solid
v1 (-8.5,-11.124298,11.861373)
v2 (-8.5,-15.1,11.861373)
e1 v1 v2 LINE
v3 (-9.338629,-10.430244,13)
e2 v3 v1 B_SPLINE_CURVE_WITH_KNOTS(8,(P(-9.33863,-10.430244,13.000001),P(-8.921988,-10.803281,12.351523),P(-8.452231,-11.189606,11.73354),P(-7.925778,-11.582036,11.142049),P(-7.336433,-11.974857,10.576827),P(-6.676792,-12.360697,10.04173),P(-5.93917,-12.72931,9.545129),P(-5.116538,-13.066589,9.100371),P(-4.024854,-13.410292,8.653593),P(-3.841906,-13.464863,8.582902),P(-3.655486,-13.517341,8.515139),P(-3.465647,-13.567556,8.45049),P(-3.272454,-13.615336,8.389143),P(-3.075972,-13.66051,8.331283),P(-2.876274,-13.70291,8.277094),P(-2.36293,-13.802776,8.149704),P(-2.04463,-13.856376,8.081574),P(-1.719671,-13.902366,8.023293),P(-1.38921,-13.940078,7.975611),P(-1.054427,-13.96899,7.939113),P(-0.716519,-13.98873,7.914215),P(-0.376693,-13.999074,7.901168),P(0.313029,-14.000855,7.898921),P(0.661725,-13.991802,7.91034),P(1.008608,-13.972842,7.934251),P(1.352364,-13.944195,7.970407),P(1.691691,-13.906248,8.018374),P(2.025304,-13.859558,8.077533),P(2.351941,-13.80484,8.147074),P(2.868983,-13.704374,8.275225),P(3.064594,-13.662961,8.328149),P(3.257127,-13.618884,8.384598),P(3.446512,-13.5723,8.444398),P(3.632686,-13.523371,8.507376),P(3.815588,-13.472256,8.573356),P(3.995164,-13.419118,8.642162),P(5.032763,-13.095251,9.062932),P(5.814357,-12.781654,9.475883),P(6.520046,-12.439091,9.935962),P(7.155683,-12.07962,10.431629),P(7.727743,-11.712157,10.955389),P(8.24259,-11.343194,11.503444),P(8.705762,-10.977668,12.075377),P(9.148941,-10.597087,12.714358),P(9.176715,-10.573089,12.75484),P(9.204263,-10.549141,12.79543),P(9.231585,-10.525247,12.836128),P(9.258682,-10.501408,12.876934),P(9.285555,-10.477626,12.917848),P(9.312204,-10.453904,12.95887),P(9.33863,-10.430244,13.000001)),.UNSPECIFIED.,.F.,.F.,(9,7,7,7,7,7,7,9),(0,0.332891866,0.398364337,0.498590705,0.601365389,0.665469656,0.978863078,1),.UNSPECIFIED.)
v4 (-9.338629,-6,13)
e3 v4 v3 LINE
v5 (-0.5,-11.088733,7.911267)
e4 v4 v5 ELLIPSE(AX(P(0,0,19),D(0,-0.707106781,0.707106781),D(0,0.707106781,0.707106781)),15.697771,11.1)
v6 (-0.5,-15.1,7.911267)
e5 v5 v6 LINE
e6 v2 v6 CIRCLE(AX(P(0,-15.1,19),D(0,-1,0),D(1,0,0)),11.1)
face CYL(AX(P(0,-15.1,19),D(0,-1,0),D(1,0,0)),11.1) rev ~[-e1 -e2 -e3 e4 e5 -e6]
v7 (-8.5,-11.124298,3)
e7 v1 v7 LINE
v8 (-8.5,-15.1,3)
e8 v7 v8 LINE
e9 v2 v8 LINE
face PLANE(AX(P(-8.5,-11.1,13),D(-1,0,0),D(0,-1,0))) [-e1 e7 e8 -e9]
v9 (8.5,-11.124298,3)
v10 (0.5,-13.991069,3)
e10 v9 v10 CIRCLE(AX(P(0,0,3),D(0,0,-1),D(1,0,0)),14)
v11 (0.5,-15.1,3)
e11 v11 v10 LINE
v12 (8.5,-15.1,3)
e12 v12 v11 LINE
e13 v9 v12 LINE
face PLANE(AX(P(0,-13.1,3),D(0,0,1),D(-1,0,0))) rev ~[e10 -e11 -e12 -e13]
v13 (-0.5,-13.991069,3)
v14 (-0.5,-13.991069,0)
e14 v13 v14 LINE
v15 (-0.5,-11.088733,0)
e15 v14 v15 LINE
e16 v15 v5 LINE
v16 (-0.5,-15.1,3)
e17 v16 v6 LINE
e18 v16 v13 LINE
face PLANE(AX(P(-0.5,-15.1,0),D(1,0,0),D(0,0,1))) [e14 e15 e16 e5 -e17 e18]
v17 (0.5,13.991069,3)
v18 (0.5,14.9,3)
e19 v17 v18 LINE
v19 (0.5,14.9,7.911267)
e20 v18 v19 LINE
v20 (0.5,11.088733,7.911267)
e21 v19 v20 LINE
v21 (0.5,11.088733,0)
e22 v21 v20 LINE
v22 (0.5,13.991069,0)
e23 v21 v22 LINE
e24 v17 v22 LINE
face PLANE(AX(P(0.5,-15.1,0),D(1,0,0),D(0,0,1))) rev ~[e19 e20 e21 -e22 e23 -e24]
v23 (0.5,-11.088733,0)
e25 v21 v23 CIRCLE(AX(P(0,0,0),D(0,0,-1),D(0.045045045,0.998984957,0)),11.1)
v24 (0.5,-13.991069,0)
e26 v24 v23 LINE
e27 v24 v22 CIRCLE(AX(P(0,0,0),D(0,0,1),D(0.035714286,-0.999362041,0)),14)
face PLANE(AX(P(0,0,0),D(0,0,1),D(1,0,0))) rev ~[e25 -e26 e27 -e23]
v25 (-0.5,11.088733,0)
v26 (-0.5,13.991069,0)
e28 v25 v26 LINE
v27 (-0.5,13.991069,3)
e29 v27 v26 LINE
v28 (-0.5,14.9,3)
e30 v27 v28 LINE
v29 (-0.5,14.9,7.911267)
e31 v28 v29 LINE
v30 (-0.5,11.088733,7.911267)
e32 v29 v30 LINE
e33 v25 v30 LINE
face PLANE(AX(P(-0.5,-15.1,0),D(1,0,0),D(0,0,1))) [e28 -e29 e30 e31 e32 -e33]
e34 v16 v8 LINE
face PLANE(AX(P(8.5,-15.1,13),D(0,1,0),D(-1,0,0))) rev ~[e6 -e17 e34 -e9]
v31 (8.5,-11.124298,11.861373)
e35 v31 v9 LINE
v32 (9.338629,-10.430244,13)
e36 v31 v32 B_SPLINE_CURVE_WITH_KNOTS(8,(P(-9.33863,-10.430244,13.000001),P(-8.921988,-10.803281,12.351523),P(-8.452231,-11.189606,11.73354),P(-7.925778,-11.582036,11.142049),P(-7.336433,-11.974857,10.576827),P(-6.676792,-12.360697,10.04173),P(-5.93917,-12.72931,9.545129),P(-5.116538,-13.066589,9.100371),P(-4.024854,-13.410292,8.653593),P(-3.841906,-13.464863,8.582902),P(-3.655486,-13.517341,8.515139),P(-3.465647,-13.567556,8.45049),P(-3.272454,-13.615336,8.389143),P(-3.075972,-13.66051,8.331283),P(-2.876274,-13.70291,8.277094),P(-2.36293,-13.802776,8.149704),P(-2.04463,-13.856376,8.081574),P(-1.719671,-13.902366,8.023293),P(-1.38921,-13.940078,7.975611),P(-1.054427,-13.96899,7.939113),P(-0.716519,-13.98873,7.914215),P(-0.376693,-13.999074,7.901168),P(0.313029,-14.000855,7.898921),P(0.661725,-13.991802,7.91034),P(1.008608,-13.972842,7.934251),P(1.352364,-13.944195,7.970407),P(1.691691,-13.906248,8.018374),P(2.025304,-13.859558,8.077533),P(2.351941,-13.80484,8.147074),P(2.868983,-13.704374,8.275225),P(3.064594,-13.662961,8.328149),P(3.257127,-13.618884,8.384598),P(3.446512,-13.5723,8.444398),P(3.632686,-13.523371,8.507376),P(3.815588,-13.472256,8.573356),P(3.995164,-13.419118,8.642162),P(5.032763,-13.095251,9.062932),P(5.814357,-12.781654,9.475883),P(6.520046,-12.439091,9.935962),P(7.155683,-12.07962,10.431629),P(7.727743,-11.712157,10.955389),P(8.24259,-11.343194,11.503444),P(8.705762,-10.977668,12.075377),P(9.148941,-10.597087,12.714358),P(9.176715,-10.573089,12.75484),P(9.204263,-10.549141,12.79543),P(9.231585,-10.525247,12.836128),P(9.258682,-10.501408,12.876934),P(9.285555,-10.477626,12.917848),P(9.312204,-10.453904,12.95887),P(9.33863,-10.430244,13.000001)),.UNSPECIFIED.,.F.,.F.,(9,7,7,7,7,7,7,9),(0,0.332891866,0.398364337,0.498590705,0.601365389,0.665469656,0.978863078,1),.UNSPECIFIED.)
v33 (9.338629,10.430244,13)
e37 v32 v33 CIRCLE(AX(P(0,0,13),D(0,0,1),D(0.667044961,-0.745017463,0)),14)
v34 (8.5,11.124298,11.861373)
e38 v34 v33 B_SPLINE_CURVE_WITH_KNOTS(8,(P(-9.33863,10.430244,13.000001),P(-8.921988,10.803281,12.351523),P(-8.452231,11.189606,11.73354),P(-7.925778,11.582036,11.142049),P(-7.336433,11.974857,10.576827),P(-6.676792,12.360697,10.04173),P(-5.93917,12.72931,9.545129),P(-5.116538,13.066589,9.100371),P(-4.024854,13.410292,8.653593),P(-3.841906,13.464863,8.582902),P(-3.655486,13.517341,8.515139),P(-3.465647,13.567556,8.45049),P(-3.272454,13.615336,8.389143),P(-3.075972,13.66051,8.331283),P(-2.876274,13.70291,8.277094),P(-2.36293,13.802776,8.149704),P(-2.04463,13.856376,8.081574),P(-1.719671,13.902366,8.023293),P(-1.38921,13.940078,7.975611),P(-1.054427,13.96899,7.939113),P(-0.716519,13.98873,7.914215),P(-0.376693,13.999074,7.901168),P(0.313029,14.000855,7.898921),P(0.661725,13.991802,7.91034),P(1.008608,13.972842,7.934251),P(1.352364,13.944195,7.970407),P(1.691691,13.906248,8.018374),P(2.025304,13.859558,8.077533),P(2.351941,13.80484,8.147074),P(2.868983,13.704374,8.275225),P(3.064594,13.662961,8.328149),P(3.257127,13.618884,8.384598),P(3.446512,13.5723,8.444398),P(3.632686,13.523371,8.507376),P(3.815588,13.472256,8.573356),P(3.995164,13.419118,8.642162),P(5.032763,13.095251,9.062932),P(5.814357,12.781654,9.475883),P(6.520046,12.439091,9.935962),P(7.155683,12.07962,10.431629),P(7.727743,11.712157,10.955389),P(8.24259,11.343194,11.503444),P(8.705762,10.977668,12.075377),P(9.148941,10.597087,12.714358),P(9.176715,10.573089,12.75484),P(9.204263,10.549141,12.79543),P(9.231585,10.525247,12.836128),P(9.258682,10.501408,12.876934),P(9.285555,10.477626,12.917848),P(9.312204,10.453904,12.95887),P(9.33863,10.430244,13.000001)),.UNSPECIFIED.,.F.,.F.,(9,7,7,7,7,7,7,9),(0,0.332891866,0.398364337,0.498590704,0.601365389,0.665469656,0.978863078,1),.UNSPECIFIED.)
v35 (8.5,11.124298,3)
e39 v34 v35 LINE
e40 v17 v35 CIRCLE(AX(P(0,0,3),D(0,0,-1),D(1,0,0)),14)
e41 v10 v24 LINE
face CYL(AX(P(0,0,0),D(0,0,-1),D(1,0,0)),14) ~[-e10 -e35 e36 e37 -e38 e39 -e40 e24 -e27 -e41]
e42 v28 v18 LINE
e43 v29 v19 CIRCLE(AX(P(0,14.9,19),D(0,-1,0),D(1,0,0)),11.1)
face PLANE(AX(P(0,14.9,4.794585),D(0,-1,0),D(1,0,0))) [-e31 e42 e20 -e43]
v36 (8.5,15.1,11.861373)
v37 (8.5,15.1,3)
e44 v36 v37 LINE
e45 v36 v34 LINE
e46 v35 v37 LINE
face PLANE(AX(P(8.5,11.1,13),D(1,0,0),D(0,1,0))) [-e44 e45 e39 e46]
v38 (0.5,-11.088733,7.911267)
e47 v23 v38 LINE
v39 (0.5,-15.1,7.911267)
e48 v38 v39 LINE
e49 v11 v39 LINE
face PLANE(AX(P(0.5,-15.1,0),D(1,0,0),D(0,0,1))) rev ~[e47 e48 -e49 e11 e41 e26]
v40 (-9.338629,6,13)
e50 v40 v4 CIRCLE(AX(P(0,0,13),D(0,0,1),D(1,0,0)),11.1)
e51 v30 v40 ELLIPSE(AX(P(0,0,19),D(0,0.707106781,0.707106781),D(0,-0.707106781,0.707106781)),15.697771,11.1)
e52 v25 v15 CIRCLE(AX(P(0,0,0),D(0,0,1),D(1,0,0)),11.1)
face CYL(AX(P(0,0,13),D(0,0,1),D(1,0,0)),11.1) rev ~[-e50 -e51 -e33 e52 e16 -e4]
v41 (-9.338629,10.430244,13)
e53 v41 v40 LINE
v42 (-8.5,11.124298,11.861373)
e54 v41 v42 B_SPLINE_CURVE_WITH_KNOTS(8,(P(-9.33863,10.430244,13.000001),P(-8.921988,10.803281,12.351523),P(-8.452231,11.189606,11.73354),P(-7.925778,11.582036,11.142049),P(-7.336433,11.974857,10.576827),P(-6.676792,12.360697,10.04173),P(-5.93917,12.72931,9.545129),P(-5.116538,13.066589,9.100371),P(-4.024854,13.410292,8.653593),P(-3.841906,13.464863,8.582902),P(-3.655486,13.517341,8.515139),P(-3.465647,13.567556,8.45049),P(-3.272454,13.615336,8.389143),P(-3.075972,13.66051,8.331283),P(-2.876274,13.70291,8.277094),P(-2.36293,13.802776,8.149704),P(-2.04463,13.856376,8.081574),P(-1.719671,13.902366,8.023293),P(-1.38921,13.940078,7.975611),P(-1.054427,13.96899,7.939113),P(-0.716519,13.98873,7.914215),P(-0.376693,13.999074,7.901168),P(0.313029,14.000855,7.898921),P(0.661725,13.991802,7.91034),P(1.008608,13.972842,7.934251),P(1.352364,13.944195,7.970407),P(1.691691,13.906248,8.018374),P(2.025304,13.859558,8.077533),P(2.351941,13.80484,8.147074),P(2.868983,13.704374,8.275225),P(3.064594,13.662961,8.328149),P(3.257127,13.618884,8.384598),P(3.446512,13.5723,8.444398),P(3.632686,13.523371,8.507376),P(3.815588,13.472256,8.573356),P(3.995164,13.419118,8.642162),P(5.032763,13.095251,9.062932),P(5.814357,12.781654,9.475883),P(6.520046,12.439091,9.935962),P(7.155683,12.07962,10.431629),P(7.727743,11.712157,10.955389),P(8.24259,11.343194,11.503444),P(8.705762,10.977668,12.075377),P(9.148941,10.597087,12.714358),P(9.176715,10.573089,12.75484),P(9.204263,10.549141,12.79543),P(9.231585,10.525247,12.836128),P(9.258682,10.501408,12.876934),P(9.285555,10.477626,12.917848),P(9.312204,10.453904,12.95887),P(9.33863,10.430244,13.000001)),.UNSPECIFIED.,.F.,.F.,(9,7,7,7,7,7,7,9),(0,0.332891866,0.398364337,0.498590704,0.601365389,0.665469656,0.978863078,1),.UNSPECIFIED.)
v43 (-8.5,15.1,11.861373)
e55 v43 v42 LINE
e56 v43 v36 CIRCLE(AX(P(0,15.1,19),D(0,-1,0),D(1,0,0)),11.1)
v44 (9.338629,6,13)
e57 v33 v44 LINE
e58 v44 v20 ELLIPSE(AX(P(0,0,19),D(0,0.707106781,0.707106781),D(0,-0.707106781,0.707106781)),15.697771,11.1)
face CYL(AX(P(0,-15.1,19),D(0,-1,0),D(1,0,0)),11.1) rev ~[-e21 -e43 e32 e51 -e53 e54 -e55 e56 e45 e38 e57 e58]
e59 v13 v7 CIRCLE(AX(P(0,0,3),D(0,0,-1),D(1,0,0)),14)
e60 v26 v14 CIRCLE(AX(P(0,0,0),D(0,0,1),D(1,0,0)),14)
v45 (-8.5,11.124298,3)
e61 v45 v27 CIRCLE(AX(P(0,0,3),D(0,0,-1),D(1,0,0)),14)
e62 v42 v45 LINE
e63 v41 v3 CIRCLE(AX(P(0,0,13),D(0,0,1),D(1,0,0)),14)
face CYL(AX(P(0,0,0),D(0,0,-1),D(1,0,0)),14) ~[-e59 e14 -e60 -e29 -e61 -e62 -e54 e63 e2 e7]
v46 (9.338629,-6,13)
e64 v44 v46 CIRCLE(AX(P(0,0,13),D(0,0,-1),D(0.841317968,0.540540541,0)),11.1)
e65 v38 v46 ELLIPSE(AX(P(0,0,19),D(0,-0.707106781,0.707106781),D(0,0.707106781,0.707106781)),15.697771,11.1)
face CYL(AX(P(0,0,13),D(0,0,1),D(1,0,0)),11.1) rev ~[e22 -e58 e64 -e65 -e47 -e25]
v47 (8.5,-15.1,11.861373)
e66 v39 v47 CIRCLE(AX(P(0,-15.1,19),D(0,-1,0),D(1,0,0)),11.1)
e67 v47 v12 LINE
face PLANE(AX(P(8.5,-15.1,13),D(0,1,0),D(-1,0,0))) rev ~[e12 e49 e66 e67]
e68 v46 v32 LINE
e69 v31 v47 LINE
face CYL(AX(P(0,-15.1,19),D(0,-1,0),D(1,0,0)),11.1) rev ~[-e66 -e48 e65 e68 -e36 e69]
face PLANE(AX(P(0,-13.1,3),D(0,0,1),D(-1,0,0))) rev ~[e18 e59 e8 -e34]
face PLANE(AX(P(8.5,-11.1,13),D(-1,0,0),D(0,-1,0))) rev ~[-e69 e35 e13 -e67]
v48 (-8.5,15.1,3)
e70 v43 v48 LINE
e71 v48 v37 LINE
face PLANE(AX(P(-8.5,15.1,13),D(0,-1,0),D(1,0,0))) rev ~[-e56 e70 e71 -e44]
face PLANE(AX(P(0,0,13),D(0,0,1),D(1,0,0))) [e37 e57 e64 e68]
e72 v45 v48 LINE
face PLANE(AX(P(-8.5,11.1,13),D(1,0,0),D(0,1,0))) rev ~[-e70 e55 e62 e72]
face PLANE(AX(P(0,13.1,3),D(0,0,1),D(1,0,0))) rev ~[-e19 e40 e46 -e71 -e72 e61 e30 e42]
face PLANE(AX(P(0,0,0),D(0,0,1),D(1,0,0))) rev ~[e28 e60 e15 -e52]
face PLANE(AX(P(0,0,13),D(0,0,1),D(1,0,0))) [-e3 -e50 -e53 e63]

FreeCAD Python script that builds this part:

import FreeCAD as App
import Part
import Sketcher

V = App.Vector

doc = App.newDocument("Part")
body = doc.addObject("PartDesign::Body", "Body")

# Sketch on XY plane
sketch1 = body.newObject("Sketcher::SketchObject", "Sketch")
sketch1.AttachmentSupport = (doc.getObject("XY_Plane"), [""])
sketch1.MapMode = "FlatFace"
sketch1.addGeometry(Part.Circle(V(0, 0, 0), V(0, 0, 1), 14), False)
sketch1.addConstraint([
    Sketcher.Constraint("Coincident", 0, 3, -1, 1),
    Sketcher.Constraint("Diameter", 0, 28.0),
])
pad1 = body.newObject("PartDesign::Pad", "Pad")
pad1.Profile = sketch1
pad1.Length = 13

# Sketch on XY plane
sketch2 = body.newObject("Sketcher::SketchObject", "Sketch001")
sketch2.AttachmentSupport = (doc.getObject("XY_Plane"), [""])
sketch2.MapMode = "FlatFace"
sketch2.AttachmentOffset = App.Placement(V(0, 0, 13), App.Rotation())
sketch2.addGeometry(Part.Circle(V(0, 0, 0), V(0, 0, 1), 11), False)
sketch2.addConstraint([
    Sketcher.Constraint("Coincident", 0, 3, -1, 1),
    Sketcher.Constraint("Diameter", 0, 22.2),
])
pocket1 = body.newObject("PartDesign::Pocket", "Pocket")
pocket1.Profile = sketch2
pocket1.Type = "ThroughAll"

# Sketch on XY plane
sketch3 = body.newObject("Sketcher::SketchObject", "Sketch002")
sketch3.AttachmentSupport = (doc.getObject("XY_Plane"), [""])
sketch3.MapMode = "FlatFace"
sketch3.AttachmentOffset = App.Placement(V(0, 0, 13), App.Rotation())
sketch3.addGeometry([
    Part.LineSegment(V(-8.5, 15.1, 0), V(-8.5, 11.1, 0)),
    Part.LineSegment(V(-8.5, 11.1, 0), V(8.5, 11.1, 0)),
    Part.LineSegment(V(8.5, 11.1, 0), V(8.5, 15.1, 0)),
    Part.LineSegment(V(8.5, 15.1, 0), V(-8.5, 15.1, 0)),
], False)
sketch3.addConstraint([
    Sketcher.Constraint("Coincident", 0, 2, 1, 1),
    Sketcher.Constraint("Coincident", 1, 2, 2, 1),
    Sketcher.Constraint("Coincident", 2, 2, 3, 1),
    Sketcher.Constraint("Coincident", 3, 2, 0, 1),
    Sketcher.Constraint("Vertical", 0),
    Sketcher.Constraint("Horizontal", 1),
    Sketcher.Constraint("Vertical", 2),
    Sketcher.Constraint("Horizontal", 3),
    Sketcher.Constraint("DistanceX", 1, 1, 1, 2, 17.0),
    Sketcher.Constraint("DistanceY", 0, 2, 0, 1, 4.0),
    Sketcher.Constraint("DistanceX", 0, 2, -1, 1, 8.5),
    Sketcher.Constraint("DistanceY", -1, 1, 0, 2, 11.1),
])
pad2 = body.newObject("PartDesign::Pad", "Pad001")
pad2.Profile = sketch3
pad2.Length = 10
pad2.Reversed = True
doc.recompute()

polarpattern = body.newObject("PartDesign::PolarPattern", "PolarPattern")
polarpattern.Originals = [pad2]
polarpattern.Axis = (doc.getObject("Z_Axis"), [""])
polarpattern.Angle = 360
polarpattern.Occurrences = 2
body.Tip = polarpattern

# Sketch on XZ plane
sketch4 = body.newObject("Sketcher::SketchObject", "Sketch003")
sketch4.AttachmentSupport = (doc.getObject("XZ_Plane"), [""])
sketch4.MapMode = "FlatFace"
sketch4.AttachmentOffset = App.Placement(V(0, 0, 15.1), App.Rotation())
sketch4.addGeometry(Part.Circle(V(0, 19, 0), V(0, 0, 1), 11), False)
sketch4.addConstraint([
    Sketcher.Constraint("PointOnObject", 0, 3, -2),
    Sketcher.Constraint("Diameter", 0, 22.2),
    Sketcher.Constraint("DistanceY", -1, 1, 0, 3, 19.0),
])
pocket2 = body.newObject("PartDesign::Pocket", "Pocket001")
pocket2.Profile = sketch4
pocket2.Type = "ThroughAll"

# Sketch on XZ plane
sketch5 = body.newObject("Sketcher::SketchObject", "Sketch004")
sketch5.AttachmentSupport = (doc.getObject("XZ_Plane"), [""])
sketch5.MapMode = "FlatFace"
sketch5.AttachmentOffset = App.Placement(V(0, 0, 15.1), App.Rotation())
sketch5.addGeometry([
    Part.LineSegment(V(-0.5, 9.6, 0), V(-0.5, 0, 0)),
    Part.LineSegment(V(-0.5, 0, 0), V(0.5, 0, 0)),
    Part.LineSegment(V(0.5, 0, 0), V(0.5, 9.6, 0)),
    Part.LineSegment(V(0.5, 9.6, 0), V(-0.5, 9.6, 0)),
], False)
sketch5.addConstraint([
    Sketcher.Constraint("Coincident", 0, 2, 1, 1),
    Sketcher.Constraint("Coincident", 1, 2, 2, 1),
    Sketcher.Constraint("Coincident", 2, 2, 3, 1),
    Sketcher.Constraint("Coincident", 3, 2, 0, 1),
    Sketcher.Constraint("Vertical", 0),
    Sketcher.Constraint("Horizontal", 1),
    Sketcher.Constraint("Vertical", 2),
    Sketcher.Constraint("Horizontal", 3),
    Sketcher.Constraint("Symmetric", 0, 2, 1, 2, -1, 1),
    Sketcher.Constraint("DistanceX", 1, 1, 1, 2, 1.0),
    Sketcher.Constraint("DistanceY", 0, 2, 0, 1, 9.58917),
])
pocket3 = body.newObject("PartDesign::Pocket", "Pocket002")
pocket3.Profile = sketch5
pocket3.Length = 30

doc.recompute()
